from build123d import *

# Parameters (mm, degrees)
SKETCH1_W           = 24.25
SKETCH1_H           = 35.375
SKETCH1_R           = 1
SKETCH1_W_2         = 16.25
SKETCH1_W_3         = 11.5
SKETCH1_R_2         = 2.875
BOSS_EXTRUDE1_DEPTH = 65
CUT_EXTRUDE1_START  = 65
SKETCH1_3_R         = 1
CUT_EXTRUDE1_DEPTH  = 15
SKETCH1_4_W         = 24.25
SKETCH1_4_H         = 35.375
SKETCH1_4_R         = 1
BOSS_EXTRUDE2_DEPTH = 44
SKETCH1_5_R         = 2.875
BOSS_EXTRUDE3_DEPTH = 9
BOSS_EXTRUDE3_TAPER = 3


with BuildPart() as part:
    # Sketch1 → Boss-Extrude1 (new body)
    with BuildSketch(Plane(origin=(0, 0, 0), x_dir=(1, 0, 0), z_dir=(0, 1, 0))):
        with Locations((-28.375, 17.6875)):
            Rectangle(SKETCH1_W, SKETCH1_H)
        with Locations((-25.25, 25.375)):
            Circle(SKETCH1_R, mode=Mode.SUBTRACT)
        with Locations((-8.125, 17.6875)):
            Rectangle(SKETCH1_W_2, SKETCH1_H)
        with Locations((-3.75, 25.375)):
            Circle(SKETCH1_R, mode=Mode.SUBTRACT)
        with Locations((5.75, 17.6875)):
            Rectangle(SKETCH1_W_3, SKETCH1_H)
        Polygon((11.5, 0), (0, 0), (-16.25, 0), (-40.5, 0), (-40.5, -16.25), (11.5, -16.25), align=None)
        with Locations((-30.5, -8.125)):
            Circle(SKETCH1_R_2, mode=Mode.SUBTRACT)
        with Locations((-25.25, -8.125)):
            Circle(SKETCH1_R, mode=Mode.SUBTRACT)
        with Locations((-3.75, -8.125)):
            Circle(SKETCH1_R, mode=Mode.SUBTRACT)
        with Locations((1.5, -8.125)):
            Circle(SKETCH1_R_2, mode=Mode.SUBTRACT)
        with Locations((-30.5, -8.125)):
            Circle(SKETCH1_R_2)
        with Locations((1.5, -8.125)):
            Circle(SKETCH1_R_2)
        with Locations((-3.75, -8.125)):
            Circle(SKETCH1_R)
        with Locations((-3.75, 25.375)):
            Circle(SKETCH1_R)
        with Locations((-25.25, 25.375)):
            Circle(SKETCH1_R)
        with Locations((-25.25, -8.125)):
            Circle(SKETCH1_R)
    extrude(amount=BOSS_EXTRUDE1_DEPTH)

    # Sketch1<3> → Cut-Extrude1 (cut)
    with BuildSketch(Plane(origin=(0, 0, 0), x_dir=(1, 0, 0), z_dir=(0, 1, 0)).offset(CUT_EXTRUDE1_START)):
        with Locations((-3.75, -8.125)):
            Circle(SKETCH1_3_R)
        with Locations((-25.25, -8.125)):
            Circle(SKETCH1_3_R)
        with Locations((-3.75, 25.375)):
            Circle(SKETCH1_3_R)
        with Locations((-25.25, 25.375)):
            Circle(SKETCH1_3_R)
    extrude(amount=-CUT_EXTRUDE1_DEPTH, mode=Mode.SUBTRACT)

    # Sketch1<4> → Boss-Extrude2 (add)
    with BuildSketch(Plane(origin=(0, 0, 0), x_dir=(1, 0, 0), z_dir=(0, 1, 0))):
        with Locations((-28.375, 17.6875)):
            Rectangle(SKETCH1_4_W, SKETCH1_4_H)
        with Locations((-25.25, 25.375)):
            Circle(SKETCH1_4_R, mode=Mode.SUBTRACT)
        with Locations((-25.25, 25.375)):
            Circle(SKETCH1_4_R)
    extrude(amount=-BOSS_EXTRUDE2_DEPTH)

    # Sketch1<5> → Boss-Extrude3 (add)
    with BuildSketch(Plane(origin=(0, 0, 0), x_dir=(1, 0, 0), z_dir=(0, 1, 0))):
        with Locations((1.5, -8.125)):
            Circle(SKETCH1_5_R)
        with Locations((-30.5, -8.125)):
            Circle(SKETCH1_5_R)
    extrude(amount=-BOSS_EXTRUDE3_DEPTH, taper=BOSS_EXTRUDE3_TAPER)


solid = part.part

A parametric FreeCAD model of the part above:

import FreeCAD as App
import Part
import Sketcher
Q = App.Units.Quantity

doc = App.newDocument("Part")
body = doc.addObject("PartDesign::Body", "Body")

# Sketch on XZ plane
sketch1 = doc.addObject("Sketcher::SketchObject", "Sketch")
body.addObject(sketch1)
sketch1.AttachmentSupport = (doc.XZ_Plane, [""])
sketch1.MapMode = "FlatFace"
sketch1.addGeometry([
    Part.LineSegment(App.Vector(-40, -35, 0), App.Vector(-40, 16, 0)),
    Part.LineSegment(App.Vector(-40, 16, 0), App.Vector(12, 16, 0)),
    Part.LineSegment(App.Vector(12, 16, 0), App.Vector(12, -35, 0)),
    Part.LineSegment(App.Vector(12, -35, 0), App.Vector(-40, -35, 0)),
], False)
sketch1.addConstraint([
    Sketcher.Constraint("Coincident", 0, 2, 1, 1),
    Sketcher.Constraint("Coincident", 1, 2, 2, 1),
    Sketcher.Constraint("Coincident", 2, 2, 3, 1),
    Sketcher.Constraint("Coincident", 3, 2, 0, 1),
    Sketcher.Constraint("Vertical", 0),
    Sketcher.Constraint("Horizontal", 1),
    Sketcher.Constraint("Vertical", 2),
    Sketcher.Constraint("Horizontal", 3),
    Sketcher.Constraint("DistanceX", 1, 1, 1, 2, Q("52 mm")),
    Sketcher.Constraint("DistanceX", 0, 2, -1, 1, Q("40.5 mm")),
    Sketcher.Constraint("DistanceY", 0, 1, 0, 2, Q("51.625 mm")),
    Sketcher.Constraint("DistanceY", -1, 1, 0, 2, Q("16.25 mm")),
])
pad1 = doc.addObject("PartDesign::Pad", "Pad")
body.addObject(pad1)
pad1.Profile = sketch1
pad1.Length = 65
pad1.Reversed = True

# Sketch on XZ plane
sketch2 = doc.addObject("Sketcher::SketchObject", "Sketch001")
body.addObject(sketch2)
sketch2.AttachmentSupport = (doc.XZ_Plane, [""])
sketch2.MapMode = "FlatFace"
sketch2.AttachmentOffset = App.Placement(App.Vector(0, 0, -65), App.Rotation())
sketch2.addGeometry([
    Part.Circle(App.Vector(-3.8, 8.1, 0), App.Vector(0, 0, 1), 1),
    Part.Circle(App.Vector(-25.2, 8.1, 0), App.Vector(0, 0, 1), 1),
    Part.Circle(App.Vector(-3.8, -25.4, 0), App.Vector(0, 0, 1), 1),
    Part.Circle(App.Vector(-25.2, -25.4, 0), App.Vector(0, 0, 1), 1),
], False)
sketch2.addConstraint([
    Sketcher.Constraint("Equal", 0, 1),
    Sketcher.Constraint("Equal", 1, 2),
    Sketcher.Constraint("Equal", 2, 3),
    Sketcher.Constraint("Horizontal", 0, 3, 1, 3),
    Sketcher.Constraint("Horizontal", 2, 3, 3, 3),
    Sketcher.Constraint("Vertical", 0, 3, 2, 3),
    Sketcher.Constraint("Vertical", 1, 3, 3, 3),
    Sketcher.Constraint("Diameter", 0, Q("2 mm")),
    Sketcher.Constraint("DistanceX", 1, 3, 0, 3, Q("21.5 mm")),
    Sketcher.Constraint("DistanceY", 2, 3, 0, 3, Q("33.5 mm")),
    Sketcher.Constraint("DistanceX", 0, 3, -1, 1, Q("3.75 mm")),
    Sketcher.Constraint("DistanceY", -1, 1, 0, 3, Q("8.125 mm")),
])
pocket1 = doc.addObject("PartDesign::Pocket", "Pocket")
body.addObject(pocket1)
pocket1.Profile = sketch2
pocket1.Length = 15
pocket1.Reversed = True

# Sketch on XZ plane
sketch3 = doc.addObject("Sketcher::SketchObject", "Sketch002")
body.addObject(sketch3)
sketch3.AttachmentSupport = (doc.XZ_Plane, [""])
sketch3.MapMode = "FlatFace"
sketch3.addGeometry([
    Part.LineSegment(App.Vector(-40, -35, 0), App.Vector(-40, 0, 0)),
    Part.LineSegment(App.Vector(-40, 0, 0), App.Vector(-16, 0, 0)),
    Part.LineSegment(App.Vector(-16, 0, 0), App.Vector(-16, -35, 0)),
    Part.LineSegment(App.Vector(-16, -35, 0), App.Vector(-40, -35, 0)),
], False)
sketch3.addConstraint([
    Sketcher.Constraint("Coincident", 0, 2, 1, 1),
    Sketcher.Constraint("Coincident", 1, 2, 2, 1),
    Sketcher.Constraint("Coincident", 2, 2, 3, 1),
    Sketcher.Constraint("Coincident", 3, 2, 0, 1),
    Sketcher.Constraint("Vertical", 0),
    Sketcher.Constraint("Horizontal", 1),
    Sketcher.Constraint("Vertical", 2),
    Sketcher.Constraint("Horizontal", 3),
    Sketcher.Constraint("PointOnObject", 0, 2, -1),
    Sketcher.Constraint("DistanceX", 1, 1, 1, 2, Q("24.25 mm")),
    Sketcher.Constraint("DistanceX", 0, 2, -1, 1, Q("40.5 mm")),
    Sketcher.Constraint("DistanceY", 0, 1, 0, 2, Q("35.375 mm")),
])
pad2 = doc.addObject("PartDesign::Pad", "Pad001")
body.addObject(pad2)
pad2.Profile = sketch3
pad2.Length = 44

# Sketch on XZ plane
sketch4 = doc.addObject("Sketcher::SketchObject", "Sketch003")
body.addObject(sketch4)
sketch4.AttachmentSupport = (doc.XZ_Plane, [""])
sketch4.MapMode = "FlatFace"
sketch4.addGeometry([
    Part.Circle(App.Vector(1.5, 8.1, 0), App.Vector(0, 0, 1), 2.9),
    Part.Circle(App.Vector(-30.5, 8.1, 0), App.Vector(0, 0, 1), 2.9),
], False)
sketch4.addConstraint([
    Sketcher.Constraint("Equal", 0, 1),
    Sketcher.Constraint("Horizontal", 0, 3, 1, 3),
    Sketcher.Constraint("Diameter", 0, Q("5.75 mm")),
    Sketcher.Constraint("DistanceX", 1, 3, 0, 3, Q("32 mm")),
    Sketcher.Constraint("DistanceX", -1, 1, 0, 3, Q("1.5 mm")),
    Sketcher.Constraint("DistanceY", -1, 1, 0, 3, Q("8.125 mm")),
])
pad3 = doc.addObject("PartDesign::Pad", "Pad002")
body.addObject(pad3)
pad3.Profile = sketch4
pad3.Length = 9
pad3.TaperAngle = -3

doc.recompute()
